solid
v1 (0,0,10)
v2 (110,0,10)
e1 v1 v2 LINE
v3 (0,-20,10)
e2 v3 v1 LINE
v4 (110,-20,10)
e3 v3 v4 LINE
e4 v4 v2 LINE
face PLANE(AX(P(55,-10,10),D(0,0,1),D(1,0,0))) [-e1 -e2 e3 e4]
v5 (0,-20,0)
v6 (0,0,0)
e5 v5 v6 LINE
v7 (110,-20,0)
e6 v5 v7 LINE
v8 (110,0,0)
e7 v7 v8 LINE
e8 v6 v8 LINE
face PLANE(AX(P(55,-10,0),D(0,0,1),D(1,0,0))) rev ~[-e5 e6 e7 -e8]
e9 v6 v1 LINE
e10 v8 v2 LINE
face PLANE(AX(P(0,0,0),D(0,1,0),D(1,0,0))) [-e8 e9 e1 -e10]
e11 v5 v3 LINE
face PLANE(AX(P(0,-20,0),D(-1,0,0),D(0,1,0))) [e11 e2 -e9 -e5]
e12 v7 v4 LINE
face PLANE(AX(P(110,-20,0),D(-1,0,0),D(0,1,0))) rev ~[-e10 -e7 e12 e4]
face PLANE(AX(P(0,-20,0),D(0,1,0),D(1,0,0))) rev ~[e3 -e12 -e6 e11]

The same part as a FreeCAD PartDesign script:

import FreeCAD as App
import Part
import Sketcher

doc = App.newDocument("Part")
params = doc.addObject("Spreadsheet::Sheet", "Params")
for row, (alias, value) in enumerate([
    ("sketch1_width", "110 mm"),
    ("sketch1_height", "20 mm"),
    ("pad1_length", "10 mm"),
], start=1):
    params.set(f"A{row}", alias)
    params.set(f"B{row}", "=" + value)
    params.setAlias(f"B{row}", alias)

body = doc.addObject("PartDesign::Body", "Body")

# Sketch on XY plane
sketch1 = body.newObject("Sketcher::SketchObject", "Sketch")
sketch1.AttachmentSupport = (doc.getObject("XY_Plane"), [""])
sketch1.MapMode = "FlatFace"
sketch1.addGeometry(Part.LineSegment(App.Vector(0, 0, 0), App.Vector(0, -20, 0)), False)
sketch1.addGeometry(Part.LineSegment(App.Vector(0, -20, 0), App.Vector(110, -20, 0)), False)
sketch1.addGeometry(Part.LineSegment(App.Vector(110, -20, 0), App.Vector(110, 0, 0)), False)
sketch1.addGeometry(Part.LineSegment(App.Vector(110, 0, 0), App.Vector(0, 0, 0)), False)
sketch1.addConstraint(Sketcher.Constraint("Coincident", 0, 2, 1, 1))
sketch1.addConstraint(Sketcher.Constraint("Coincident", 1, 2, 2, 1))
sketch1.addConstraint(Sketcher.Constraint("Coincident", 2, 2, 3, 1))
sketch1.addConstraint(Sketcher.Constraint("Coincident", 3, 2, 0, 1))
sketch1.addConstraint(Sketcher.Constraint("Vertical", 0))
sketch1.addConstraint(Sketcher.Constraint("Horizontal", 1))
sketch1.addConstraint(Sketcher.Constraint("Vertical", 2))
sketch1.addConstraint(Sketcher.Constraint("Horizontal", 3))
sketch1.addConstraint(Sketcher.Constraint("Coincident", 3, 2, -1, 1))
sketch1.addConstraint(Sketcher.Constraint("DistanceX", 1, 1, 1, 2, 110.0))
sketch1.addConstraint(Sketcher.Constraint("DistanceY", 0, 2, 0, 1, 20.0))
sketch1.setExpression("Constraints[9]", "Params.sketch1_width")
sketch1.setExpression("Constraints[10]", "Params.sketch1_height")
pad1 = body.newObject("PartDesign::Pad", "Pad")
pad1.Profile = sketch1
pad1.setExpression("Length", "Params.pad1_length")

doc.recompute()
